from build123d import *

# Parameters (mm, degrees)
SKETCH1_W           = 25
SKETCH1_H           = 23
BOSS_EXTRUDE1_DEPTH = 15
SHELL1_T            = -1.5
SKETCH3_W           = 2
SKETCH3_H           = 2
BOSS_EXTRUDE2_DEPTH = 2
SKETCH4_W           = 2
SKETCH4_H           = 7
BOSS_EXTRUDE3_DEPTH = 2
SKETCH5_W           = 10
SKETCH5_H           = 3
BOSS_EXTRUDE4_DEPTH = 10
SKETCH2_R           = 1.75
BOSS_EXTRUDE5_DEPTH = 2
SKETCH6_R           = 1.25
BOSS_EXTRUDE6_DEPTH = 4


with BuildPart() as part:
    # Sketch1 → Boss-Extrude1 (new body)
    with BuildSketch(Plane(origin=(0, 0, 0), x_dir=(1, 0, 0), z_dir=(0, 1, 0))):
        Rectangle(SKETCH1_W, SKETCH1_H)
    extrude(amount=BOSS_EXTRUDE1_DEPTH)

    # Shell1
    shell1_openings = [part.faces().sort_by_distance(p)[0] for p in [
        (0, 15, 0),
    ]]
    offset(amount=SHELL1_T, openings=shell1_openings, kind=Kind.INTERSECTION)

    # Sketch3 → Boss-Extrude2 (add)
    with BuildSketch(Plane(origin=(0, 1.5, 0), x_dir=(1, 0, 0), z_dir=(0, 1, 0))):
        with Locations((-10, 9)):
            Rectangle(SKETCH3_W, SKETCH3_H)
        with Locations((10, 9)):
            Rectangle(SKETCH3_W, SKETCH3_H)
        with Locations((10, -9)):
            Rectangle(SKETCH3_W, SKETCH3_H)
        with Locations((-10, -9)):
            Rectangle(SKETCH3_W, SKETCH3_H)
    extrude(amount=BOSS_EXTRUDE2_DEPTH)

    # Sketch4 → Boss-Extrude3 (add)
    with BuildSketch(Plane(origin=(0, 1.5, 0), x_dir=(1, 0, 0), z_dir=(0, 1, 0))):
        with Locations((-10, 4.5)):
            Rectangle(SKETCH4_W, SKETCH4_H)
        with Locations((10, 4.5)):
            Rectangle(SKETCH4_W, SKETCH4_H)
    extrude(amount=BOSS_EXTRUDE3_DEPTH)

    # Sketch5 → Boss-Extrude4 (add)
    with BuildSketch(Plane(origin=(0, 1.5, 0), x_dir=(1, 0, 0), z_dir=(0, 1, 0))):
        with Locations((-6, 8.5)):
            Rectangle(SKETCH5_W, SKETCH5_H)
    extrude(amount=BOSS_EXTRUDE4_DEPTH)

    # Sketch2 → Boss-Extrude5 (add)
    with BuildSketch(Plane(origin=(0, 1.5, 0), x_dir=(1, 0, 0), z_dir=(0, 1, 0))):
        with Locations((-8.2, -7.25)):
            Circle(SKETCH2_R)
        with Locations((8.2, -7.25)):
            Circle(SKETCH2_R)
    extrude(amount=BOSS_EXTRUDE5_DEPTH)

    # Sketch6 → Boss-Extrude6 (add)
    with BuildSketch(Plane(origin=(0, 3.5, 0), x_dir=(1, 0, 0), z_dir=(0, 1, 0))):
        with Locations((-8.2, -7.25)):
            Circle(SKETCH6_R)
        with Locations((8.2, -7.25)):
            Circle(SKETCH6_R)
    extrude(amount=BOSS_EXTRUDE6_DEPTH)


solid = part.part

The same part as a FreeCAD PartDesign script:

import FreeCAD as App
import Part
import Sketcher
Q = App.Units.Quantity


def faces_at(feature, points):
    """Names of the faces that lie closest to the given points."""
    faces = feature.Shape.Faces
    near = lambda p: min(range(len(faces)), key=lambda i: faces[i].distToShape(Part.Vertex(*p))[0])
    return sorted({f"Face{near(p) + 1}" for p in points})


def add_polygon(sketch, points):
    """Adds a closed chain of lines whose ends are joined by coincident constraints."""
    first, n = sketch.GeometryCount, len(points)
    for a, b in zip(points, points[1:] + points[:1]):
        sketch.addGeometry(Part.LineSegment(App.Vector(*a, 0), App.Vector(*b, 0)), False)
    for i in range(n):
        sketch.addConstraint(Sketcher.Constraint("Coincident", first + i, 2, first + (i + 1) % n, 1))

doc = App.newDocument("Part")
params = doc.addObject("Spreadsheet::Sheet", "Params")
for row, (alias, value) in enumerate([
    ("sketch1_width", "25 mm"),
    ("sketch1_height", "23 mm"),
    ("pad1_length", "15 mm"),
    ("thickness_wall", "1.5 mm"),
    ("sketch2_width", "2 mm"),
    ("pad2_length", "2 mm"),
    ("sketch3_width", "2 mm"),
    ("sketch3_height", "7 mm"),
    ("pad3_length", "2 mm"),
    ("sketch4_width", "10 mm"),
    ("sketch4_height", "3 mm"),
    ("pad4_length", "10 mm"),
    ("sketch5_diameter", "3.5 mm"),
    ("pad5_length", "2 mm"),
    ("sketch6_diameter", "2.5 mm"),
    ("pad6_length", "4 mm"),
], start=1):
    params.set(f"A{row}", alias)
    params.set(f"B{row}", "=" + value)
    params.setAlias(f"B{row}", alias)

body = doc.addObject("PartDesign::Body", "Body")

# Sketch on XZ plane
sketch1 = body.newObject("Sketcher::SketchObject", "Sketch")
sketch1.AttachmentSupport = (doc.getObject("XZ_Plane"), [""])
sketch1.MapMode = "FlatFace"
add_polygon(sketch1, [(-12, -12), (-12, 12), (12, 12), (12, -12)])  # lines 0-3
sketch1.addConstraint([
    Sketcher.Constraint("Vertical", 0),
    Sketcher.Constraint("Horizontal", 1),
    Sketcher.Constraint("Vertical", 2),
    Sketcher.Constraint("Horizontal", 3),
    Sketcher.Constraint("Symmetric", 0, 2, 2, 2, -1, 1),
    Sketcher.Constraint("DistanceX", 1, 1, 1, 2, Q("25 mm")),
    Sketcher.Constraint("DistanceY", 0, 1, 0, 2, Q("23 mm")),
])
sketch1.setExpression("Constraints[9]", "Params.sketch1_width")
sketch1.setExpression("Constraints[10]", "Params.sketch1_height")
pad1 = body.newObject("PartDesign::Pad", "Pad")
pad1.Profile = sketch1
pad1.setExpression("Length", "Params.pad1_length")
pad1.Reversed = True
doc.recompute()

thickness = body.newObject("PartDesign::Thickness", "Thickness")
thickness.Base = (pad1, faces_at(pad1, [(0, 15, 0)]))
thickness.setExpression("Value", "Params.thickness_wall")
thickness.Reversed = True
thickness.Join = "Intersection"

# Sketch on XZ plane
sketch2 = body.newObject("Sketcher::SketchObject", "Sketch001")
sketch2.AttachmentSupport = (doc.getObject("XZ_Plane"), [""])
sketch2.MapMode = "FlatFace"
sketch2.AttachmentOffset = App.Placement(App.Vector(0, 0, -1.5), App.Rotation())
add_polygon(sketch2, [(-11, -10), (-11, -8), (-9, -8), (-9, -10)])  # lines 0-3
add_polygon(sketch2, [(9, -10), (9, -8), (11, -8), (11, -10)])  # lines 4-7
add_polygon(sketch2, [(9, 8), (9, 10), (11, 10), (11, 8)])  # lines 8-11
add_polygon(sketch2, [(-11, 8), (-11, 10), (-9, 10), (-9, 8)])  # lines 12-15
sketch2.addConstraint([
    Sketcher.Constraint("Vertical", 0),
    Sketcher.Constraint("Horizontal", 1),
    Sketcher.Constraint("Vertical", 2),
    Sketcher.Constraint("Horizontal", 3),
    Sketcher.Constraint("Vertical", 4),
    Sketcher.Constraint("Horizontal", 5),
    Sketcher.Constraint("Vertical", 6),
    Sketcher.Constraint("Horizontal", 7),
    Sketcher.Constraint("Vertical", 8),
    Sketcher.Constraint("Horizontal", 9),
    Sketcher.Constraint("Vertical", 10),
    Sketcher.Constraint("Horizontal", 11),
    Sketcher.Constraint("Vertical", 12),
    Sketcher.Constraint("Horizontal", 13),
    Sketcher.Constraint("Vertical", 14),
    Sketcher.Constraint("Horizontal", 15),
    Sketcher.Constraint("Symmetric", 2, 2, 8, 2, -1, 1),
    Sketcher.Constraint("Symmetric", 0, 2, 10, 2, -1, 1),
    Sketcher.Constraint("Symmetric", 6, 2, 12, 2, -1, 1),
    Sketcher.Constraint("Symmetric", 4, 2, 14, 2, -1, 1),
    Sketcher.Constraint("Symmetric", 1, 2, 4, 2, -2),
    Sketcher.Constraint("Symmetric", 3, 2, 6, 2, -2),
    Sketcher.Constraint("Equal", 15, 0),
    Sketcher.Constraint("DistanceX", 1, 1, 1, 2, Q("2 mm")),
    Sketcher.Constraint("DistanceX", 0, 2, -1, 1, Q("11 mm")),
    Sketcher.Constraint("DistanceY", 0, 2, -1, 1, Q("8 mm")),
])
sketch2.setExpression("Constraints[39]", "Params.sketch2_width")
pad2 = body.newObject("PartDesign::Pad", "Pad001")
pad2.Profile = sketch2
pad2.setExpression("Length", "Params.pad2_length")
pad2.Reversed = True

# Sketch on XZ plane
sketch3 = body.newObject("Sketcher::SketchObject", "Sketch002")
sketch3.AttachmentSupport = (doc.getObject("XZ_Plane"), [""])
sketch3.MapMode = "FlatFace"
sketch3.AttachmentOffset = App.Placement(App.Vector(0, 0, -1.5), App.Rotation())
add_polygon(sketch3, [(-11, -8), (-11, -1), (-9, -1), (-9, -8)])  # lines 0-3
add_polygon(sketch3, [(9, -8), (9, -1), (11, -1), (11, -8)])  # lines 4-7
sketch3.addConstraint([
    Sketcher.Constraint("Vertical", 0),
    Sketcher.Constraint("Horizontal", 1),
    Sketcher.Constraint("Vertical", 2),
    Sketcher.Constraint("Horizontal", 3),
    Sketcher.Constraint("Vertical", 4),
    Sketcher.Constraint("Horizontal", 5),
    Sketcher.Constraint("Vertical", 6),
    Sketcher.Constraint("Horizontal", 7),
    Sketcher.Constraint("Symmetric", 1, 2, 4, 2, -2),
    Sketcher.Constraint("Symmetric", 3, 2, 6, 2, -2),
    Sketcher.Constraint("DistanceX", 1, 1, 1, 2, Q("2 mm")),
    Sketcher.Constraint("DistanceY", 0, 1, 0, 2, Q("7 mm")),
    Sketcher.Constraint("DistanceX", 0, 2, -1, 1, Q("11 mm")),
    Sketcher.Constraint("DistanceY", 0, 2, -1, 1, Q("1 mm")),
])
sketch3.setExpression("Constraints[18]", "Params.sketch3_width")
sketch3.setExpression("Constraints[19]", "Params.sketch3_height")
pad3 = body.newObject("PartDesign::Pad", "Pad002")
pad3.Profile = sketch3
pad3.setExpression("Length", "Params.pad3_length")
pad3.Reversed = True

# Sketch on XZ plane
sketch4 = body.newObject("Sketcher::SketchObject", "Sketch003")
sketch4.AttachmentSupport = (doc.getObject("XZ_Plane"), [""])
sketch4.MapMode = "FlatFace"
sketch4.AttachmentOffset = App.Placement(App.Vector(0, 0, -1.5), App.Rotation())
add_polygon(sketch4, [(-11, -10), (-11, -7), (-1, -7), (-1, -10)])  # lines 0-3
sketch4.addConstraint([
    Sketcher.Constraint("Vertical", 0),
    Sketcher.Constraint("Horizontal", 1),
    Sketcher.Constraint("Vertical", 2),
    Sketcher.Constraint("Horizontal", 3),
    Sketcher.Constraint("DistanceX", 1, 1, 1, 2, Q("10 mm")),
    Sketcher.Constraint("DistanceY", 0, 1, 0, 2, Q("3 mm")),
    Sketcher.Constraint("DistanceX", 0, 2, -1, 1, Q("11 mm")),
    Sketcher.Constraint("DistanceY", 0, 2, -1, 1, Q("7 mm")),
])
sketch4.setExpression("Constraints[8]", "Params.sketch4_width")
sketch4.setExpression("Constraints[9]", "Params.sketch4_height")
pad4 = body.newObject("PartDesign::Pad", "Pad003")
pad4.Profile = sketch4
pad4.setExpression("Length", "Params.pad4_length")
pad4.Reversed = True

# Sketch on XZ plane
sketch5 = body.newObject("Sketcher::SketchObject", "Sketch004")
sketch5.AttachmentSupport = (doc.getObject("XZ_Plane"), [""])
sketch5.MapMode = "FlatFace"
sketch5.AttachmentOffset = App.Placement(App.Vector(0, 0, -1.5), App.Rotation())
sketch5.addGeometry([
    Part.Circle(App.Vector(-8.2, 7.2, 0), App.Vector(0, 0, 1), 1.8),
    Part.Circle(App.Vector(8.2, 7.2, 0), App.Vector(0, 0, 1), 1.8),
], False)
sketch5.addConstraint([
    Sketcher.Constraint("Equal", 0, 1),
    Sketcher.Constraint("Symmetric", 0, 3, 1, 3, -2),
    Sketcher.Constraint("Diameter", 0, Q("3.5 mm")),
    Sketcher.Constraint("DistanceX", 0, 3, -1, 1, Q("8.2 mm")),
    Sketcher.Constraint("DistanceY", -1, 1, 0, 3, Q("7.25 mm")),
])
sketch5.setExpression("Constraints[2]", "Params.sketch5_diameter")
pad5 = body.newObject("PartDesign::Pad", "Pad004")
pad5.Profile = sketch5
pad5.setExpression("Length", "Params.pad5_length")
pad5.Reversed = True

# Sketch on XZ plane
sketch6 = body.newObject("Sketcher::SketchObject", "Sketch005")
sketch6.AttachmentSupport = (doc.getObject("XZ_Plane"), [""])
sketch6.MapMode = "FlatFace"
sketch6.AttachmentOffset = App.Placement(App.Vector(0, 0, -3.5), App.Rotation())
sketch6.addGeometry([
    Part.Circle(App.Vector(-8.2, 7.2, 0), App.Vector(0, 0, 1), 1.2),
    Part.Circle(App.Vector(8.2, 7.2, 0), App.Vector(0, 0, 1), 1.2),
], False)
sketch6.addConstraint([
    Sketcher.Constraint("Equal", 0, 1),
    Sketcher.Constraint("Symmetric", 0, 3, 1, 3, -2),
    Sketcher.Constraint("Diameter", 0, Q("2.5 mm")),
    Sketcher.Constraint("DistanceX", 0, 3, -1, 1, Q("8.2 mm")),
    Sketcher.Constraint("DistanceY", -1, 1, 0, 3, Q("7.25 mm")),
])
sketch6.setExpression("Constraints[2]", "Params.sketch6_diameter")
pad6 = body.newObject("PartDesign::Pad", "Pad005")
pad6.Profile = sketch6
pad6.setExpression("Length", "Params.pad6_length")
pad6.Reversed = True

doc.recompute()
